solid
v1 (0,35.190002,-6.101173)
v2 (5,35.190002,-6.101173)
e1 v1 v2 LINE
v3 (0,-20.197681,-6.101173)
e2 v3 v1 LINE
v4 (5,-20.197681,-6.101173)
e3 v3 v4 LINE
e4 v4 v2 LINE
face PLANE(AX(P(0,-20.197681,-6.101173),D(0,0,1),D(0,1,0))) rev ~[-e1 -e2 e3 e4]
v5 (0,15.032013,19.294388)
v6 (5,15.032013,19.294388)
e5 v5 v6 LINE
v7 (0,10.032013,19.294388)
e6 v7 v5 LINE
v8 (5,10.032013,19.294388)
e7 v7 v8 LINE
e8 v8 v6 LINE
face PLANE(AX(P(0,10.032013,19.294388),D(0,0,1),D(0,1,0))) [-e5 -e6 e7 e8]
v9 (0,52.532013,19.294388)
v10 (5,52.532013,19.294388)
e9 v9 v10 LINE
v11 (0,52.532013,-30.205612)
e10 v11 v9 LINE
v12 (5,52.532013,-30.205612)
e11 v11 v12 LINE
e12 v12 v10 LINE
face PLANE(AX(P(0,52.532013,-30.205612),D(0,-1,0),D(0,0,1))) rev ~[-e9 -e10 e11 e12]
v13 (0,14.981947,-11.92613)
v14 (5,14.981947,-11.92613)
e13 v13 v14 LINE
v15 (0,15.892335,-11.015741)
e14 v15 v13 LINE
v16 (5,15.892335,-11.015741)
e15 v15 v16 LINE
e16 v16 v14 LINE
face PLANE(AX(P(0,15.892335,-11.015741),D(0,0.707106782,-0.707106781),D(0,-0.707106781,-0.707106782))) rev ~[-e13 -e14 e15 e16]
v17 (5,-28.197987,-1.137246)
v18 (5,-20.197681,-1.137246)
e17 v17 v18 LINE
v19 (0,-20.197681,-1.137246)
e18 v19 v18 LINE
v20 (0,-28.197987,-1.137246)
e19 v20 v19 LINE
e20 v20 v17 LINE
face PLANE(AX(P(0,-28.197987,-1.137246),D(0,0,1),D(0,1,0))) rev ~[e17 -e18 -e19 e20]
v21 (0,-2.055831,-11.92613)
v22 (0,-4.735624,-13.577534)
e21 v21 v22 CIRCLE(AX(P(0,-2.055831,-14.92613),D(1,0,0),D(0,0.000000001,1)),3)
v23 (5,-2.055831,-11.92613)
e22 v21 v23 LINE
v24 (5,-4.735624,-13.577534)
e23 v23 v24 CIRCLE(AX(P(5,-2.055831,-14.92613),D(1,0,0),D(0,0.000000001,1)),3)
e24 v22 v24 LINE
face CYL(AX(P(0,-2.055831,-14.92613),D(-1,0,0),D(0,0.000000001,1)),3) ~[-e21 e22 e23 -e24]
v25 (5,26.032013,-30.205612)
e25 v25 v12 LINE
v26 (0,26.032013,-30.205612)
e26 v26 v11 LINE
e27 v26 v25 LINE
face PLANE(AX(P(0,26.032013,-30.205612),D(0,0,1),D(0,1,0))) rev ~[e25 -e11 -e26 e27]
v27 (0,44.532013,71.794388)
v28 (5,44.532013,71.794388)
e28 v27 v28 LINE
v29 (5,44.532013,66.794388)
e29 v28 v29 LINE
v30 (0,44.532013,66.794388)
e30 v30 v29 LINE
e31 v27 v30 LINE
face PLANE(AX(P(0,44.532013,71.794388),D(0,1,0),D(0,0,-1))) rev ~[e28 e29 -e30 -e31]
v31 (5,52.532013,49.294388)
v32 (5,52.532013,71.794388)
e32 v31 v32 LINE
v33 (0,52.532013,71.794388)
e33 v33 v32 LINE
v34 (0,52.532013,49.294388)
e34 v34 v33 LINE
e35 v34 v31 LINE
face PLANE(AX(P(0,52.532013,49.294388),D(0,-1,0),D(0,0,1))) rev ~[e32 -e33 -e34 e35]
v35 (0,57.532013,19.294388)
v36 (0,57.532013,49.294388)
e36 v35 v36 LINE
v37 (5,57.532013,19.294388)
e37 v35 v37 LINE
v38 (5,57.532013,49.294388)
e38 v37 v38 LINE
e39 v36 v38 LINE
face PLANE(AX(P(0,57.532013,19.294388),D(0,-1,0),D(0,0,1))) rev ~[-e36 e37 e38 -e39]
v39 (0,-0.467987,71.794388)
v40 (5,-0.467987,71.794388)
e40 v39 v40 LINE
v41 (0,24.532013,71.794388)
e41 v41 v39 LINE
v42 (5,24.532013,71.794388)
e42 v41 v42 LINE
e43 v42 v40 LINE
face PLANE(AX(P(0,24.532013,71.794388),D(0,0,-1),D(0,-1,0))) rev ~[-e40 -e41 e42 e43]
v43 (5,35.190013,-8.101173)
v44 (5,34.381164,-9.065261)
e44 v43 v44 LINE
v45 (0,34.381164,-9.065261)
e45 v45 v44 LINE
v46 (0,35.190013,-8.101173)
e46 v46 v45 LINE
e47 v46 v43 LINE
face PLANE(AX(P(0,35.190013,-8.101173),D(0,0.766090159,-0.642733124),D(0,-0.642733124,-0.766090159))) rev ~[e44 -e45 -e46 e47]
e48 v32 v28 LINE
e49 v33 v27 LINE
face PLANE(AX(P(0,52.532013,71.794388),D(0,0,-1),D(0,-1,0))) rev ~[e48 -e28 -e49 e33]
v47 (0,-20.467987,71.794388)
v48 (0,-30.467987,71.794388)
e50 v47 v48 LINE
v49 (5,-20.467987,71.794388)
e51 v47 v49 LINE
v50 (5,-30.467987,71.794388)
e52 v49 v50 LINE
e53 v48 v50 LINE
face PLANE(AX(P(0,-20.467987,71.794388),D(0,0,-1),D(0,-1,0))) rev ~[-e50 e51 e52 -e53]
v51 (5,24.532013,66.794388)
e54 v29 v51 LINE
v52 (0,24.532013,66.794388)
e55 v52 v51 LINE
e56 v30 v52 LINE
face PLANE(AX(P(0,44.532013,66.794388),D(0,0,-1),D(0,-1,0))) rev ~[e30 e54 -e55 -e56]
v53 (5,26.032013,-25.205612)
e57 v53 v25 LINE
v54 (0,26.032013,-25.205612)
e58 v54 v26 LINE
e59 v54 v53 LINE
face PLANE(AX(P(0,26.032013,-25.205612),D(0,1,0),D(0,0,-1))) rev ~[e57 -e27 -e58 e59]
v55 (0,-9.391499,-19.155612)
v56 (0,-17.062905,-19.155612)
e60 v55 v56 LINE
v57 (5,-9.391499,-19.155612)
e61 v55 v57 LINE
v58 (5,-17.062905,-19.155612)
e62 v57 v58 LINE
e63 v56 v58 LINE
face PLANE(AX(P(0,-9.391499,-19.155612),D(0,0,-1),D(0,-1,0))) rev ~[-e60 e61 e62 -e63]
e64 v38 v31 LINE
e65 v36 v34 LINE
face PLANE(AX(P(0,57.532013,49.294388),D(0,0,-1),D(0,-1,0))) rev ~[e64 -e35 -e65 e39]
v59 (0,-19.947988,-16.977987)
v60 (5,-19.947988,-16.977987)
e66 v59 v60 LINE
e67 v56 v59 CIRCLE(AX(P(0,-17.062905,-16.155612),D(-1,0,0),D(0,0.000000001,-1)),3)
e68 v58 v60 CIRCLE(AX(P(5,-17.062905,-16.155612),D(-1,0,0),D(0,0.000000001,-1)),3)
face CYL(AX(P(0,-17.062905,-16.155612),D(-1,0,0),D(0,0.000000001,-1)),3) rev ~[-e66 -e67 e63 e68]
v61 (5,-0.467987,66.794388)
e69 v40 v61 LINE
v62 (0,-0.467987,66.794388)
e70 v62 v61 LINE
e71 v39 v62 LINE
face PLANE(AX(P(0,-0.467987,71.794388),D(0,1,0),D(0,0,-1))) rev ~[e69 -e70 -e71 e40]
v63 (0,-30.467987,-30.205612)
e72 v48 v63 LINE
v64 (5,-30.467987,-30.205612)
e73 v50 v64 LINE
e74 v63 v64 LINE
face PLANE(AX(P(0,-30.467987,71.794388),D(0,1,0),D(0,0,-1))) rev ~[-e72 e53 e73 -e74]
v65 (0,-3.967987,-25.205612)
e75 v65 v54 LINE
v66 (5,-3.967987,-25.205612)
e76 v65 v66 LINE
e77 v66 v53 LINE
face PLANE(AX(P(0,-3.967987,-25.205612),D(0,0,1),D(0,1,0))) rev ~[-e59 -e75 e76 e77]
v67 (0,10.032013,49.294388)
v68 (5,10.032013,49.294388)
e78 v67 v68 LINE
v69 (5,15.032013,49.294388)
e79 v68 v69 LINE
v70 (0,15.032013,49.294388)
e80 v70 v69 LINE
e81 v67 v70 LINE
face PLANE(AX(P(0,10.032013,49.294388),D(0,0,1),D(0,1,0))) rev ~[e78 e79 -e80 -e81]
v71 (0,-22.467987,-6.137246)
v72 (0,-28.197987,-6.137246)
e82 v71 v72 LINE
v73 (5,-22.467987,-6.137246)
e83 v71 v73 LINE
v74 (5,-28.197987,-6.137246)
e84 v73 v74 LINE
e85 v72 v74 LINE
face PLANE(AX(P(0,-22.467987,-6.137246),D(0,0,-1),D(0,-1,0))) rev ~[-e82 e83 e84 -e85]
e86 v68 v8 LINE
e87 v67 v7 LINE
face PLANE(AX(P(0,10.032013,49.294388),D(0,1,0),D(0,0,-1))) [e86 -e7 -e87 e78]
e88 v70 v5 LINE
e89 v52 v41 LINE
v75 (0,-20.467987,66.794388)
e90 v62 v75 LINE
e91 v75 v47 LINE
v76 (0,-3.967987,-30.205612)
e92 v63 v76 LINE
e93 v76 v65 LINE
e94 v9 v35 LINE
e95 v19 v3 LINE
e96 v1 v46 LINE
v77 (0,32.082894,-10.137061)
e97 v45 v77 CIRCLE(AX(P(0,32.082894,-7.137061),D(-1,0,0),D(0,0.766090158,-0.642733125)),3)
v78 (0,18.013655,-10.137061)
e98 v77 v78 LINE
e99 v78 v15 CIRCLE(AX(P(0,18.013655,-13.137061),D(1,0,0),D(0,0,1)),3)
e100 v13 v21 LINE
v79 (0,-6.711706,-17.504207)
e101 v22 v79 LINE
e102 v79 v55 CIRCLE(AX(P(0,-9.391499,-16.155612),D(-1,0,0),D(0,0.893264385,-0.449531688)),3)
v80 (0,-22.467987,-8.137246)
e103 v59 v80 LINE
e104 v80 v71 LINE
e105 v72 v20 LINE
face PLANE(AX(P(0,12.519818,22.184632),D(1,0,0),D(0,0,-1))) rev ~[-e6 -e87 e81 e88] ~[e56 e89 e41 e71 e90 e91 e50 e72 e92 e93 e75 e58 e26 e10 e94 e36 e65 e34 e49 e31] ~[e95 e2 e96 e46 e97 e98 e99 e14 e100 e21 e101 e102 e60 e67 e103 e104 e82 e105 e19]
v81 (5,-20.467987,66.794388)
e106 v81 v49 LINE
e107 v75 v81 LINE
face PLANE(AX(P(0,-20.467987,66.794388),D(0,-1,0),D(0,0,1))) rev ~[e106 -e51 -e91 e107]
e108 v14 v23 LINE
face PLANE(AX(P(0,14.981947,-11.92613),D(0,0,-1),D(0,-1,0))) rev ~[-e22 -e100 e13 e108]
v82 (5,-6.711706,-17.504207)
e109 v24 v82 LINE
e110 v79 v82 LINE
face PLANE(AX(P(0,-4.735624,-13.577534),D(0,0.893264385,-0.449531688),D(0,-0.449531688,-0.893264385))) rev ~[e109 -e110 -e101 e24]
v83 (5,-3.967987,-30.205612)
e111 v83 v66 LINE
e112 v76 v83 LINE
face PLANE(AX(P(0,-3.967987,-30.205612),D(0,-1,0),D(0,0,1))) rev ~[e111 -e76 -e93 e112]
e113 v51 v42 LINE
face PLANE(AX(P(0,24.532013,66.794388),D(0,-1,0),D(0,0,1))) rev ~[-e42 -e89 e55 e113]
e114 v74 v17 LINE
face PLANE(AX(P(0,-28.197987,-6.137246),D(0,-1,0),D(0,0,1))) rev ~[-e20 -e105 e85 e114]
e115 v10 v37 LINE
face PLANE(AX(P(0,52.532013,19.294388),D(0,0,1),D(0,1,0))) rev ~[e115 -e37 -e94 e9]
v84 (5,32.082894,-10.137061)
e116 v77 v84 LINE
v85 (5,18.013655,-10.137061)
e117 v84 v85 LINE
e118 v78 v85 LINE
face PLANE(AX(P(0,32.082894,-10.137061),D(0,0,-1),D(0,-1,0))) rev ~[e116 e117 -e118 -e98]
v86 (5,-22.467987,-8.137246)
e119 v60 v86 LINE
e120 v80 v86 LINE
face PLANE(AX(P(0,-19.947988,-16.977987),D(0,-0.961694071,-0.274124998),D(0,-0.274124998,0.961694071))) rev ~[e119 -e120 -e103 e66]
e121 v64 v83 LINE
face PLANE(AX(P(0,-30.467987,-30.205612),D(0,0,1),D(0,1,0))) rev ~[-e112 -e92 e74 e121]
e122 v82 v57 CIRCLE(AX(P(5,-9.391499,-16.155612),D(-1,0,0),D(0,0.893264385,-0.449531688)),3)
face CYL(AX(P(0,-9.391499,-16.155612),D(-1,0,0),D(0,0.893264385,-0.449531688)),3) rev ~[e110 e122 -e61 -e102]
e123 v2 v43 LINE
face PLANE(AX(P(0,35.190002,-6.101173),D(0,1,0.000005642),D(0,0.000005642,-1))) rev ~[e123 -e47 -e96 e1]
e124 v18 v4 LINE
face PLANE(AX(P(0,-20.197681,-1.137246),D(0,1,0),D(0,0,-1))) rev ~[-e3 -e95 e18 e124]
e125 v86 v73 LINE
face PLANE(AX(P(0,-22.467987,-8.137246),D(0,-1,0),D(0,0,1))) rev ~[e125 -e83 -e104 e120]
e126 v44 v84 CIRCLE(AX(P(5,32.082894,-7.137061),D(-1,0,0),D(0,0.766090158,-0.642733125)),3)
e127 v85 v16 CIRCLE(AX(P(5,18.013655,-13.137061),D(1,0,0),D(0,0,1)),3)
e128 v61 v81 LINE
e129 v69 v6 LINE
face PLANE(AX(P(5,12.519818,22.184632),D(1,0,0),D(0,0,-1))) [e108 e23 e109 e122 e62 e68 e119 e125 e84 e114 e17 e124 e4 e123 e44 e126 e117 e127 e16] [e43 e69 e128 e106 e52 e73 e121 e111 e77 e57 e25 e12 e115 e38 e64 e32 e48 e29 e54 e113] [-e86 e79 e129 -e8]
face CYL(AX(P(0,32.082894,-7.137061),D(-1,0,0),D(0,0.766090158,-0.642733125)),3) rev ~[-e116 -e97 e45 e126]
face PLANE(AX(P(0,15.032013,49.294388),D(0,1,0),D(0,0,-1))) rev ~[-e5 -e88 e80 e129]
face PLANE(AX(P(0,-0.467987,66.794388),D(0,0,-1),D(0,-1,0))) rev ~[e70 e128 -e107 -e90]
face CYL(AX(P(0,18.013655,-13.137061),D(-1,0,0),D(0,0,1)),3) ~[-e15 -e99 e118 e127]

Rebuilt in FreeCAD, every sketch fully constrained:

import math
import FreeCAD as App
import Part
import Sketcher
from FreeCAD import Vector
Q = App.Units.Quantity

doc = App.newDocument("Part")
body = doc.addObject("PartDesign::Body", "Body")

sketch1 = doc.addObject("Sketcher::SketchObject", "Sketch")
body.addObject(sketch1)
sketch1.AttachmentSupport = (doc.YZ_Plane, [""])
sketch1.MapMode = "FlatFace"
sketch1.addGeometry([
    Part.LineSegment(Vector(-30.5, 71.8, 0), Vector(-30.5, -30.2, 0)),
    Part.LineSegment(Vector(-30.5, -30.2, 0), Vector(-4, -30.2, 0)),
    Part.LineSegment(Vector(-4, -30.2, 0), Vector(-4, -25.2, 0)),
    Part.LineSegment(Vector(-4, -25.2, 0), Vector(26, -25.2, 0)),
    Part.LineSegment(Vector(26, -25.2, 0), Vector(26, -30.2, 0)),
    Part.LineSegment(Vector(26, -30.2, 0), Vector(52.5, -30.2, 0)),
    Part.LineSegment(Vector(52.5, -30.2, 0), Vector(52.5, 19.3, 0)),
    Part.LineSegment(Vector(52.5, 19.3, 0), Vector(57.5, 19.3, 0)),
    Part.LineSegment(Vector(57.5, 19.3, 0), Vector(57.5, 49.3, 0)),
    Part.LineSegment(Vector(57.5, 49.3, 0), Vector(52.5, 49.3, 0)),
    Part.LineSegment(Vector(52.5, 49.3, 0), Vector(52.5, 71.8, 0)),
    Part.LineSegment(Vector(52.5, 71.8, 0), Vector(44.5, 71.8, 0)),
    Part.LineSegment(Vector(44.5, 71.8, 0), Vector(44.5, 66.8, 0)),
    Part.LineSegment(Vector(44.5, 66.8, 0), Vector(24.5, 66.8, 0)),
    Part.LineSegment(Vector(24.5, 66.8, 0), Vector(24.5, 71.8, 0)),
    Part.LineSegment(Vector(24.5, 71.8, 0), Vector(-0.5, 71.8, 0)),
    Part.LineSegment(Vector(-0.5, 71.8, 0), Vector(-0.5, 66.8, 0)),
    Part.LineSegment(Vector(-0.5, 66.8, 0), Vector(-20.5, 66.8, 0)),
    Part.LineSegment(Vector(-20.5, 66.8, 0), Vector(-20.5, 71.8, 0)),
    Part.LineSegment(Vector(-20.5, 71.8, 0), Vector(-30.5, 71.8, 0)),
    Part.LineSegment(Vector(-20.2, -1.1, 0), Vector(-20.2, -6.1, 0)),
    Part.LineSegment(Vector(-20.2, -6.1, 0), Vector(35.2, -6.1, 0)),
    Part.LineSegment(Vector(35.2, -6.1, 0), Vector(35.2, -8.1, 0)),
    Part.LineSegment(Vector(35.2, -8.1, 0), Vector(34.4, -9.1, 0)),
    Part.ArcOfCircle(Part.Circle(Vector(32.1, -7.1, 0), Vector(0, 0, 1), 3), math.radians(-90), math.radians(-40)),
    Part.LineSegment(Vector(32.1, -10.1, 0), Vector(18, -10.1, 0)),
    Part.ArcOfCircle(Part.Circle(Vector(18, -13.1, 0), Vector(0, 0, 1), 3), math.radians(90), math.radians(135)),
    Part.LineSegment(Vector(15.9, -11, 0), Vector(15, -11.9, 0)),
    Part.LineSegment(Vector(15, -11.9, 0), Vector(-2.1, -11.9, 0)),
    Part.ArcOfCircle(Part.Circle(Vector(-2.1, -14.9, 0), Vector(0, 0, 1), 3), math.radians(90), math.radians(153)),
    Part.LineSegment(Vector(-4.7, -13.6, 0), Vector(-6.7, -17.5, 0)),
    Part.ArcOfCircle(Part.Circle(Vector(-9.4, -16.2, 0), Vector(0, 0, 1), 3), math.radians(-90), math.radians(-27)),
    Part.LineSegment(Vector(-9.4, -19.2, 0), Vector(-17.1, -19.2, 0)),
    Part.ArcOfCircle(Part.Circle(Vector(-17.1, -16.2, 0), Vector(0, 0, 1), 3), math.radians(-164), math.radians(-90)),
    Part.LineSegment(Vector(-19.9, -17, 0), Vector(-22.5, -8.1, 0)),
    Part.LineSegment(Vector(-22.5, -8.1, 0), Vector(-22.5, -6.1, 0)),
    Part.LineSegment(Vector(-22.5, -6.1, 0), Vector(-28.2, -6.1, 0)),
    Part.LineSegment(Vector(-28.2, -6.1, 0), Vector(-28.2, -1.1, 0)),
    Part.LineSegment(Vector(-28.2, -1.1, 0), Vector(-20.2, -1.1, 0)),
    Part.LineSegment(Vector(10, 19.3, 0), Vector(10, 49.3, 0)),
    Part.LineSegment(Vector(10, 49.3, 0), Vector(15, 49.3, 0)),
    Part.LineSegment(Vector(15, 49.3, 0), Vector(15, 19.3, 0)),
    Part.LineSegment(Vector(15, 19.3, 0), Vector(10, 19.3, 0)),
], False)
sketch1.addConstraint([
    Sketcher.Constraint("Coincident", 0, 2, 1, 1),
    Sketcher.Constraint("Coincident", 1, 2, 2, 1),
    Sketcher.Constraint("Coincident", 2, 2, 3, 1),
    Sketcher.Constraint("Coincident", 3, 2, 4, 1),
    Sketcher.Constraint("Coincident", 4, 2, 5, 1),
    Sketcher.Constraint("Coincident", 5, 2, 6, 1),
    Sketcher.Constraint("Coincident", 6, 2, 7, 1),
    Sketcher.Constraint("Coincident", 7, 2, 8, 1),
    Sketcher.Constraint("Coincident", 8, 2, 9, 1),
    Sketcher.Constraint("Coincident", 9, 2, 10, 1),
    Sketcher.Constraint("Coincident", 10, 2, 11, 1),
    Sketcher.Constraint("Coincident", 11, 2, 12, 1),
    Sketcher.Constraint("Coincident", 12, 2, 13, 1),
    Sketcher.Constraint("Coincident", 13, 2, 14, 1),
    Sketcher.Constraint("Coincident", 14, 2, 15, 1),
    Sketcher.Constraint("Coincident", 15, 2, 16, 1),
    Sketcher.Constraint("Coincident", 16, 2, 17, 1),
    Sketcher.Constraint("Coincident", 17, 2, 18, 1),
    Sketcher.Constraint("Coincident", 18, 2, 19, 1),
    Sketcher.Constraint("Coincident", 19, 2, 0, 1),
    Sketcher.Constraint("Coincident", 20, 2, 21, 1),
    Sketcher.Constraint("Coincident", 21, 2, 22, 1),
    Sketcher.Constraint("Coincident", 22, 2, 23, 1),
    Sketcher.Constraint("Tangent", 23, 2, 24, 2),
    Sketcher.Constraint("Tangent", 24, 1, 25, 1),
    Sketcher.Constraint("Tangent", 25, 2, 26, 1),
    Sketcher.Constraint("Tangent", 26, 2, 27, 1),
    Sketcher.Constraint("Coincident", 27, 2, 28, 1),
    Sketcher.Constraint("Tangent", 28, 2, 29, 1),
    Sketcher.Constraint("Tangent", 29, 2, 30, 1),
    Sketcher.Constraint("Tangent", 30, 2, 31, 2),
    Sketcher.Constraint("Tangent", 31, 1, 32, 1),
    Sketcher.Constraint("Tangent", 32, 2, 33, 2),
    Sketcher.Constraint("Tangent", 33, 1, 34, 1),
    Sketcher.Constraint("Coincident", 34, 2, 35, 1),
    Sketcher.Constraint("Coincident", 35, 2, 36, 1),
    Sketcher.Constraint("Coincident", 36, 2, 37, 1),
    Sketcher.Constraint("Coincident", 37, 2, 38, 1),
    Sketcher.Constraint("Coincident", 38, 2, 20, 1),
    Sketcher.Constraint("Coincident", 39, 2, 40, 1),
    Sketcher.Constraint("Coincident", 40, 2, 41, 1),
    Sketcher.Constraint("Coincident", 41, 2, 42, 1),
    Sketcher.Constraint("Coincident", 42, 2, 39, 1),
    Sketcher.Constraint("Vertical", 0),
    Sketcher.Constraint("Horizontal", 1),
    Sketcher.Constraint("Vertical", 2),
    Sketcher.Constraint("Horizontal", 3),
    Sketcher.Constraint("Vertical", 4),
    Sketcher.Constraint("Horizontal", 5),
    Sketcher.Constraint("Vertical", 6),
    Sketcher.Constraint("Horizontal", 7),
    Sketcher.Constraint("Vertical", 8),
    Sketcher.Constraint("Horizontal", 9),
    Sketcher.Constraint("Vertical", 10),
    Sketcher.Constraint("Horizontal", 11),
    Sketcher.Constraint("Vertical", 12),
    Sketcher.Constraint("Horizontal", 13),
    Sketcher.Constraint("Vertical", 14),
    Sketcher.Constraint("Horizontal", 15),
    Sketcher.Constraint("Vertical", 16),
    Sketcher.Constraint("Horizontal", 17),
    Sketcher.Constraint("Vertical", 18),
    Sketcher.Constraint("Horizontal", 19),
    Sketcher.Constraint("Vertical", 20),
    Sketcher.Constraint("Horizontal", 21),
    Sketcher.Constraint("Horizontal", 25),
    Sketcher.Constraint("Horizontal", 28),
    Sketcher.Constraint("Horizontal", 32),
    Sketcher.Constraint("Vertical", 35),
    Sketcher.Constraint("Horizontal", 36),
    Sketcher.Constraint("Vertical", 37),
    Sketcher.Constraint("Horizontal", 38),
    Sketcher.Constraint("Vertical", 39),
    Sketcher.Constraint("Horizontal", 40),
    Sketcher.Constraint("Vertical", 41),
    Sketcher.Constraint("Horizontal", 42),
    Sketcher.Constraint("Equal", 24, 26),
    Sketcher.Constraint("Equal", 26, 29),
    Sketcher.Constraint("Equal", 29, 31),
    Sketcher.Constraint("Equal", 31, 33),
    Sketcher.Constraint("Horizontal", 1, 2, 4, 2),
    Sketcher.Constraint("Horizontal", 11, 2, 14, 2),
    Sketcher.Constraint("Horizontal", 13, 2, 16, 2),
    Sketcher.Constraint("Horizontal", 15, 2, 18, 2),
    Sketcher.Constraint("Horizontal", 9, 2, 39, 2),
    Sketcher.Constraint("Horizontal", 7, 2, 41, 2),
    Sketcher.Constraint("Vertical", 6, 2, 9, 2),
    Sketcher.Constraint("Equal", 1, 5),
    Sketcher.Constraint("Equal", 13, 17),
    Sketcher.Constraint("Equal", 9, 40),
    Sketcher.Constraint("Equal", 42, 2),
    Sketcher.Constraint("Equal", 3, 8),
    Sketcher.Constraint("Equal", 4, 12),
    Sketcher.Constraint("Equal", 18, 37),
    Sketcher.Constraint("Radius", 24, 3.0),
    Sketcher.Constraint("DistanceX", 3, 1, 3, 2, 30.0),
    Sketcher.Constraint("DistanceX", 7, 1, 7, 2, 5.0),
    Sketcher.Constraint("DistanceX", 11, 2, 11, 1, 8.0),
    Sketcher.Constraint("DistanceX", 13, 2, 13, 1, 20.0),
    Sketcher.Constraint("DistanceX", 15, 2, 15, 1, 25.0),
    Sketcher.Constraint("DistanceX", 19, 2, 19, 1, 10.0),
    Sketcher.Constraint("DistanceY", 0, 2, 0, 1, 102.0),
    Sketcher.Constraint("DistanceY", 35, 1, 35, 2, 2.0),
    Sketcher.Constraint("Angle", 27, Q("-135 deg")),
    Sketcher.Constraint("Distance", 22, 2.0),
    Sketcher.Constraint("DistanceY", 6, 1, 6, 2, 49.5),
    Sketcher.Constraint("DistanceX", 36, 2, 36, 1, 5.73),
    Sketcher.Constraint("DistanceX", 16, 2, 39, 2, 10.5),
    Sketcher.Constraint("DistanceY", 0, 2, 33, 3, 14.05),
    Sketcher.Constraint("DistanceX", 34, 2, 33, 1, 2.519999),
    Sketcher.Constraint("DistanceX", 3, 2, 22, 2, 9.158),
    Sketcher.Constraint("DistanceX", 25, 2, 25, 1, 14.069238),
    Sketcher.Constraint("DistanceX", 31, 3, -1, 1, 9.391499),
    Sketcher.Constraint("DistanceX", 33, 3, 24, 3, 49.145799),
    Sketcher.Constraint("DistanceY", 23, 2, 24, 3, 1.928199),
    Sketcher.Constraint("DistanceX", 32, 2, 30, 2, 10.351199),
    Sketcher.Constraint("Distance", 30, 4.395869),
    Sketcher.Constraint("DistanceX", 21, 1, 21, 2, 55.387684),
    Sketcher.Constraint("DistanceX", 28, 2, 28, 1, 17.037777),
    Sketcher.Constraint("DistanceX", 32, 2, 32, 1, 7.671406),
    Sketcher.Constraint("DistanceX", 38, 1, 38, 2, 8.000305),
    Sketcher.Constraint("DistanceY", 20, 2, 20, 1, 4.963926),
    Sketcher.Constraint("DistanceY", 24, 3, -1, 1, 7.137061),
    Sketcher.Constraint("DistanceX", 20, 2, -1, 1, 20.197681),
])
pad1 = doc.addObject("PartDesign::Pad", "Pad")
body.addObject(pad1)
pad1.Profile = sketch1
pad1.Length = 5

doc.recompute()
